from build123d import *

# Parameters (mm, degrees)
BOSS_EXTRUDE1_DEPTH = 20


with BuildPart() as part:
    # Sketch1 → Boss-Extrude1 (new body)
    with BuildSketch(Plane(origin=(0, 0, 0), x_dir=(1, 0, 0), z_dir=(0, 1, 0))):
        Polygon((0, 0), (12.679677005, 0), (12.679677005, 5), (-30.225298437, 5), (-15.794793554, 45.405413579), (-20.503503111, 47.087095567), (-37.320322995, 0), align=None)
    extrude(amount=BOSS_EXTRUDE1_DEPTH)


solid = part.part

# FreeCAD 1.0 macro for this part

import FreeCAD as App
import Part
import Sketcher


def add_polygon(sketch, points):
    """Adds a closed chain of lines whose ends are joined by coincident constraints."""
    first, n = sketch.GeometryCount, len(points)
    for a, b in zip(points, points[1:] + points[:1]):
        sketch.addGeometry(Part.LineSegment(App.Vector(*a, 0), App.Vector(*b, 0)), False)
    for i in range(n):
        sketch.addConstraint(Sketcher.Constraint("Coincident", first + i, 2, first + (i + 1) % n, 1))

doc = App.newDocument("Part")
params = doc.addObject("Spreadsheet::Sheet", "Params")
for row, (alias, value) in enumerate([
    ("sketch1_width", "50 mm"),
    ("sketch1_height", "5 mm"),
    ("sketch1_length", "5 mm"),
    ("sketch1_length2", "50 mm"),
    ("pad1_length", "20 mm"),
], start=1):
    params.set(f"A{row}", alias)
    params.set(f"B{row}", "=" + value)
    params.setAlias(f"B{row}", alias)

body = doc.addObject("PartDesign::Body", "Body")

# Sketch on XZ plane
sketch1 = body.newObject("Sketcher::SketchObject", "Sketch")
sketch1.AttachmentSupport = (doc.getObject("XZ_Plane"), [""])
sketch1.MapMode = "FlatFace"
add_polygon(sketch1, [(13, 0), (13, -5), (-30, -5), (-16, -45), (-21, -47), (-37, 0)])  # lines 0-5
sketch1.addConstraint(Sketcher.Constraint("Vertical", 0))
sketch1.addConstraint(Sketcher.Constraint("Horizontal", 1))
sketch1.addConstraint(Sketcher.Constraint("Horizontal", 5))
sketch1.addConstraint(Sketcher.Constraint("PointOnObject", 4, 2, -1))
sketch1.addConstraint(Sketcher.Constraint("Perpendicular", 2, 3))
sketch1.addConstraint(Sketcher.Constraint("Perpendicular", 3, 4))
sketch1.addConstraint(Sketcher.Constraint("DistanceX", 5, 1, 5, 2, 50.0))
sketch1.addConstraint(Sketcher.Constraint("DistanceY", 0, 2, 0, 1, 5.0))
sketch1.addConstraint(Sketcher.Constraint("Distance", 3, 5.0))
sketch1.addConstraint(Sketcher.Constraint("Distance", 4, 50.0))
sketch1.addConstraint(Sketcher.Constraint("DistanceX", 1, 2, -1, 1, 30.225298))
sketch1.addConstraint(Sketcher.Constraint("DistanceX", 1, 2, 1, 1, 42.904975))
sketch1.setExpression("Constraints[12]", "Params.sketch1_width")
sketch1.setExpression("Constraints[13]", "Params.sketch1_height")
sketch1.setExpression("Constraints[14]", "Params.sketch1_length")
sketch1.setExpression("Constraints[15]", "Params.sketch1_length2")
pad1 = body.newObject("PartDesign::Pad", "Pad")
pad1.Profile = sketch1
pad1.setExpression("Length", "Params.pad1_length")
pad1.Reversed = True

doc.recompute()
